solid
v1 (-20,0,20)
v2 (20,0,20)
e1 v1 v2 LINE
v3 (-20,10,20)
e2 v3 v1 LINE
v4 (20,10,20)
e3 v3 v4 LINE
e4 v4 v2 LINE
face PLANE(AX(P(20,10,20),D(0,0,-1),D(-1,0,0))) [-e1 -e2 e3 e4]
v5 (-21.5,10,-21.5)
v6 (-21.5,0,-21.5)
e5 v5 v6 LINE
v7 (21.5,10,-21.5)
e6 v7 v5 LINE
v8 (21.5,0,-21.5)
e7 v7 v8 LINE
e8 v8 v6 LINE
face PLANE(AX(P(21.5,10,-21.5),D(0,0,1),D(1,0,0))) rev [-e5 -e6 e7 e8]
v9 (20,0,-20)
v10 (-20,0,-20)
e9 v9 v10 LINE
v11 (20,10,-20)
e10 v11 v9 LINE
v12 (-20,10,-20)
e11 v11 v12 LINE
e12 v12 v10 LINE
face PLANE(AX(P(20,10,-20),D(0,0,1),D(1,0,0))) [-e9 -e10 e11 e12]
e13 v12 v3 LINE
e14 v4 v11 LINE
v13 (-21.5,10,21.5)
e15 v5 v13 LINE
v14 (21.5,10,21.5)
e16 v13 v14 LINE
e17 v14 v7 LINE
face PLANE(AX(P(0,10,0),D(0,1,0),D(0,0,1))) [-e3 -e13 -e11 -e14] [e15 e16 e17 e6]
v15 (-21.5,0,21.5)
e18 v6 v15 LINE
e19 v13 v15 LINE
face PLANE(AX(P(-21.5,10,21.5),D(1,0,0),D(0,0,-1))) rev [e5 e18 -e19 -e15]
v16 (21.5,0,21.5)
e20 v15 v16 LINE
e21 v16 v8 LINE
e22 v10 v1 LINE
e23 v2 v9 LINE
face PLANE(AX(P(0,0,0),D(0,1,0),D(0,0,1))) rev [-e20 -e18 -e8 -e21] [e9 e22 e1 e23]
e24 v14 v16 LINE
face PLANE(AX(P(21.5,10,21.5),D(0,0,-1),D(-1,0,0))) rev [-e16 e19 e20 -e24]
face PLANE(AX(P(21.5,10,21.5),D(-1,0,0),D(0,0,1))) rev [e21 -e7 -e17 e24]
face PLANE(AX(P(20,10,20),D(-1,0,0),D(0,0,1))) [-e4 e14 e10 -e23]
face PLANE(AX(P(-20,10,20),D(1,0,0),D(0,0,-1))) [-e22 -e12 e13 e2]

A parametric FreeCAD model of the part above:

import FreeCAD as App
import Part
import Sketcher
from FreeCAD import Vector

doc = App.newDocument("Part")
body = doc.addObject("PartDesign::Body", "Body")

# Sketch on XZ plane
sketch1 = body.newObject("Sketcher::SketchObject", "Sketch")
sketch1.AttachmentSupport = (doc.getObject("XZ_Plane"), [""])
sketch1.MapMode = "FlatFace"
sketch1.addGeometry(Part.LineSegment(Vector(-22, -22, 0), Vector(-22, 22, 0)), False)
sketch1.addGeometry(Part.LineSegment(Vector(-22, 22, 0), Vector(22, 22, 0)), False)
sketch1.addGeometry(Part.LineSegment(Vector(22, 22, 0), Vector(22, -22, 0)), False)
sketch1.addGeometry(Part.LineSegment(Vector(22, -22, 0), Vector(-22, -22, 0)), False)
sketch1.addGeometry(Part.LineSegment(Vector(20, 20, 0), Vector(-20, 20, 0)), False)
sketch1.addGeometry(Part.LineSegment(Vector(-20, 20, 0), Vector(-20, -20, 0)), False)
sketch1.addGeometry(Part.LineSegment(Vector(-20, -20, 0), Vector(20, -20, 0)), False)
sketch1.addGeometry(Part.LineSegment(Vector(20, -20, 0), Vector(20, 20, 0)), False)
sketch1.addConstraint(Sketcher.Constraint("Coincident", 0, 2, 1, 1))
sketch1.addConstraint(Sketcher.Constraint("Coincident", 1, 2, 2, 1))
sketch1.addConstraint(Sketcher.Constraint("Coincident", 2, 2, 3, 1))
sketch1.addConstraint(Sketcher.Constraint("Coincident", 3, 2, 0, 1))
sketch1.addConstraint(Sketcher.Constraint("Coincident", 4, 2, 5, 1))
sketch1.addConstraint(Sketcher.Constraint("Coincident", 5, 2, 6, 1))
sketch1.addConstraint(Sketcher.Constraint("Coincident", 6, 2, 7, 1))
sketch1.addConstraint(Sketcher.Constraint("Coincident", 7, 2, 4, 1))
sketch1.addConstraint(Sketcher.Constraint("Vertical", 0))
sketch1.addConstraint(Sketcher.Constraint("Horizontal", 1))
sketch1.addConstraint(Sketcher.Constraint("Vertical", 2))
sketch1.addConstraint(Sketcher.Constraint("Horizontal", 3))
sketch1.addConstraint(Sketcher.Constraint("Horizontal", 4))
sketch1.addConstraint(Sketcher.Constraint("Vertical", 5))
sketch1.addConstraint(Sketcher.Constraint("Horizontal", 6))
sketch1.addConstraint(Sketcher.Constraint("Vertical", 7))
sketch1.addConstraint(Sketcher.Constraint("Symmetric", 0, 2, 2, 2, -1, 1))
sketch1.addConstraint(Sketcher.Constraint("Symmetric", 4, 2, 6, 2, -1, 1))
sketch1.addConstraint(Sketcher.Constraint("Equal", 3, 0))
sketch1.addConstraint(Sketcher.Constraint("Equal", 6, 5))
sketch1.addConstraint(Sketcher.Constraint("DistanceX", 1, 1, 1, 2, 43.0))
sketch1.addConstraint(Sketcher.Constraint("DistanceX", 4, 2, 4, 1, 40.0))
pad1 = body.newObject("PartDesign::Pad", "Pad")
pad1.Profile = sketch1
pad1.Length = 10
pad1.Reversed = True

doc.recompute()
